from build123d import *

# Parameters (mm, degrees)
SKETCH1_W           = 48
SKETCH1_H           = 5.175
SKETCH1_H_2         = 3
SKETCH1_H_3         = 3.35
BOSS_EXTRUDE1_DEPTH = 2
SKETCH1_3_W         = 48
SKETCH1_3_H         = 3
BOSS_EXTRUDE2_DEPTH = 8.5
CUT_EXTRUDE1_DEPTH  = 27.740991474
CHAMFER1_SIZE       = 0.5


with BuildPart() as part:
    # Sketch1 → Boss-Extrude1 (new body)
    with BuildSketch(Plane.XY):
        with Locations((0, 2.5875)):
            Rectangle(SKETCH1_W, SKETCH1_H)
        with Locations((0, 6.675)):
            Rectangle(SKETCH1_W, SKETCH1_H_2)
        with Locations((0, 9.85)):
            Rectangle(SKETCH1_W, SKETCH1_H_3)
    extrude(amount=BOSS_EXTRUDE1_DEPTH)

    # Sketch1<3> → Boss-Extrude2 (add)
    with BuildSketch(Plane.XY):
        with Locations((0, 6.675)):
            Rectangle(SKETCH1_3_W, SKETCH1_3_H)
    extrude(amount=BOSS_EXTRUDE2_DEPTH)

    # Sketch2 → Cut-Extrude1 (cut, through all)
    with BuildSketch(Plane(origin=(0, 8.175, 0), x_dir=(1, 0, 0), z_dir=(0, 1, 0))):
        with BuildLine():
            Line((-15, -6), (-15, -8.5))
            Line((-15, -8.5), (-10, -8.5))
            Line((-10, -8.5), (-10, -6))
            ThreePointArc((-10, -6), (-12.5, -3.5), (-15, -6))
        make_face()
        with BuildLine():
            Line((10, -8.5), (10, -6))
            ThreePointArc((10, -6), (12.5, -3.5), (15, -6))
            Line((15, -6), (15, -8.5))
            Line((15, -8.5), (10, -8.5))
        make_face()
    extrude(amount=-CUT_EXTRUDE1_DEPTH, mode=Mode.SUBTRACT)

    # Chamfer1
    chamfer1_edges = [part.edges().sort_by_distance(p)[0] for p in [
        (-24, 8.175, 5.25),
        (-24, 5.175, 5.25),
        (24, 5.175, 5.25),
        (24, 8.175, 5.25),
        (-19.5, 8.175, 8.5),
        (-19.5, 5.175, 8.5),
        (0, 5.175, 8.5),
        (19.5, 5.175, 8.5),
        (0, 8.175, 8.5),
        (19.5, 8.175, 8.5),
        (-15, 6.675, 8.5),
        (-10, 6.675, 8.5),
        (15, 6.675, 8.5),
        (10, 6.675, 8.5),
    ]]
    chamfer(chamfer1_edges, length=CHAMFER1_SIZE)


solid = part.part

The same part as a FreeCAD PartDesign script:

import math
import FreeCAD as App
import Part
import Sketcher
from FreeCAD import Vector
Q = App.Units.Quantity


def edges_at(feature, points):
    """Names of the edges that pass closest to the given points."""
    edges = feature.Shape.Edges
    near = lambda p: min(range(len(edges)), key=lambda i: edges[i].distToShape(Part.Vertex(*p))[0])
    return sorted({f"Edge{near(p) + 1}" for p in points})

doc = App.newDocument("Part")
params = doc.addObject("Spreadsheet::Sheet", "Params")
for row, (alias, value) in enumerate([
    ("sketch1_width", "48 mm"),
    ("pad1_length", "2 mm"),
    ("sketch2_width", "48 mm"),
    ("sketch2_height", "3 mm"),
    ("pad2_length", "8.5 mm"),
    ("sketch3_radius", "2.5 mm"),
    ("sketch3_height", "2.5 mm"),
    ("chamfer_size", "0.5 mm"),
], start=1):
    params.set(f"A{row}", alias)
    params.set(f"B{row}", "=" + value)
    params.setAlias(f"B{row}", alias)

body = doc.addObject("PartDesign::Body", "Body")

# Sketch on XY plane
sketch1 = doc.addObject("Sketcher::SketchObject", "Sketch")
body.addObject(sketch1)
sketch1.AttachmentSupport = (doc.XY_Plane, [""])
sketch1.MapMode = "FlatFace"
sketch1.addGeometry(Part.LineSegment(Vector(-24, 0, 0), Vector(24, 0, 0)), False)
sketch1.addGeometry(Part.LineSegment(Vector(24, 0, 0), Vector(24, 12, 0)), False)
sketch1.addGeometry(Part.LineSegment(Vector(24, 12, 0), Vector(-24, 12, 0)), False)
sketch1.addGeometry(Part.LineSegment(Vector(-24, 12, 0), Vector(-24, 0, 0)), False)
sketch1.addConstraint(Sketcher.Constraint("Coincident", 0, 2, 1, 1))
sketch1.addConstraint(Sketcher.Constraint("Coincident", 1, 2, 2, 1))
sketch1.addConstraint(Sketcher.Constraint("Coincident", 2, 2, 3, 1))
sketch1.addConstraint(Sketcher.Constraint("Coincident", 3, 2, 0, 1))
sketch1.addConstraint(Sketcher.Constraint("Horizontal", 0))
sketch1.addConstraint(Sketcher.Constraint("Vertical", 1))
sketch1.addConstraint(Sketcher.Constraint("Horizontal", 2))
sketch1.addConstraint(Sketcher.Constraint("Vertical", 3))
sketch1.addConstraint(Sketcher.Constraint("Symmetric", 0, 2, 3, 2, -1, 1))
sketch1.addConstraint(Sketcher.Constraint("DistanceX", 0, 1, 0, 2, Q("48 mm")))
sketch1.addConstraint(Sketcher.Constraint("DistanceY", 1, 1, 1, 2, Q("11.525 mm")))
sketch1.setExpression("Constraints[9]", "Params.sketch1_width")
pad1 = doc.addObject("PartDesign::Pad", "Pad")
body.addObject(pad1)
pad1.Profile = sketch1
pad1.setExpression("Length", "Params.pad1_length")

# Sketch on XY plane
sketch2 = doc.addObject("Sketcher::SketchObject", "Sketch001")
body.addObject(sketch2)
sketch2.AttachmentSupport = (doc.XY_Plane, [""])
sketch2.MapMode = "FlatFace"
sketch2.addGeometry(Part.LineSegment(Vector(-24, 8.2, 0), Vector(-24, 5.2, 0)), False)
sketch2.addGeometry(Part.LineSegment(Vector(-24, 5.2, 0), Vector(24, 5.2, 0)), False)
sketch2.addGeometry(Part.LineSegment(Vector(24, 5.2, 0), Vector(24, 8.2, 0)), False)
sketch2.addGeometry(Part.LineSegment(Vector(24, 8.2, 0), Vector(-24, 8.2, 0)), False)
sketch2.addConstraint(Sketcher.Constraint("Coincident", 0, 2, 1, 1))
sketch2.addConstraint(Sketcher.Constraint("Coincident", 1, 2, 2, 1))
sketch2.addConstraint(Sketcher.Constraint("Coincident", 2, 2, 3, 1))
sketch2.addConstraint(Sketcher.Constraint("Coincident", 3, 2, 0, 1))
sketch2.addConstraint(Sketcher.Constraint("Vertical", 0))
sketch2.addConstraint(Sketcher.Constraint("Horizontal", 1))
sketch2.addConstraint(Sketcher.Constraint("Vertical", 2))
sketch2.addConstraint(Sketcher.Constraint("Horizontal", 3))
sketch2.addConstraint(Sketcher.Constraint("DistanceX", 1, 1, 1, 2, Q("48 mm")))
sketch2.addConstraint(Sketcher.Constraint("DistanceY", 0, 2, 0, 1, Q("3 mm")))
sketch2.addConstraint(Sketcher.Constraint("DistanceX", 0, 2, -1, 1, Q("24 mm")))
sketch2.addConstraint(Sketcher.Constraint("DistanceY", -1, 1, 0, 2, Q("5.175 mm")))
sketch2.setExpression("Constraints[8]", "Params.sketch2_width")
sketch2.setExpression("Constraints[9]", "Params.sketch2_height")
pad2 = doc.addObject("PartDesign::Pad", "Pad001")
body.addObject(pad2)
pad2.Profile = sketch2
pad2.setExpression("Length", "Params.pad2_length")

# Sketch on XZ plane
sketch3 = doc.addObject("Sketcher::SketchObject", "Sketch002")
body.addObject(sketch3)
sketch3.AttachmentSupport = (doc.XZ_Plane, [""])
sketch3.MapMode = "FlatFace"
sketch3.AttachmentOffset = App.Placement(Vector(0, 0, -8.175), App.Rotation())
sketch3.addGeometry(Part.LineSegment(Vector(-15, 6, 0), Vector(-15, 8.5, 0)), False)
sketch3.addGeometry(Part.LineSegment(Vector(-15, 8.5, 0), Vector(-10, 8.5, 0)), False)
sketch3.addGeometry(Part.LineSegment(Vector(-10, 8.5, 0), Vector(-10, 6, 0)), False)
sketch3.addGeometry(Part.ArcOfCircle(Part.Circle(Vector(-12.5, 6, 0), Vector(0, 0, 1), 2.5), math.radians(180), math.radians(360)), False)
sketch3.addGeometry(Part.LineSegment(Vector(10, 6, 0), Vector(10, 8.5, 0)), False)
sketch3.addGeometry(Part.LineSegment(Vector(10, 8.5, 0), Vector(15, 8.5, 0)), False)
sketch3.addGeometry(Part.LineSegment(Vector(15, 8.5, 0), Vector(15, 6, 0)), False)
sketch3.addGeometry(Part.ArcOfCircle(Part.Circle(Vector(12.5, 6, 0), Vector(0, 0, 1), 2.5), math.radians(180), math.radians(360)), False)
sketch3.addConstraint(Sketcher.Constraint("Coincident", 0, 2, 1, 1))
sketch3.addConstraint(Sketcher.Constraint("Coincident", 1, 2, 2, 1))
sketch3.addConstraint(Sketcher.Constraint("Tangent", 2, 2, 3, 2))
sketch3.addConstraint(Sketcher.Constraint("Tangent", 3, 1, 0, 1))
sketch3.addConstraint(Sketcher.Constraint("Coincident", 4, 2, 5, 1))
sketch3.addConstraint(Sketcher.Constraint("Coincident", 5, 2, 6, 1))
sketch3.addConstraint(Sketcher.Constraint("Tangent", 6, 2, 7, 2))
sketch3.addConstraint(Sketcher.Constraint("Tangent", 7, 1, 4, 1))
sketch3.addConstraint(Sketcher.Constraint("Vertical", 0))
sketch3.addConstraint(Sketcher.Constraint("Horizontal", 1))
sketch3.addConstraint(Sketcher.Constraint("Vertical", 2))
sketch3.addConstraint(Sketcher.Constraint("Vertical", 4))
sketch3.addConstraint(Sketcher.Constraint("Horizontal", 5))
sketch3.addConstraint(Sketcher.Constraint("Vertical", 6))
sketch3.addConstraint(Sketcher.Constraint("Equal", 3, 7))
sketch3.addConstraint(Sketcher.Constraint("Symmetric", 3, 3, 7, 3, -2))
sketch3.addConstraint(Sketcher.Constraint("Horizontal", 1, 2, 4, 2))
sketch3.addConstraint(Sketcher.Constraint("Radius", 3, Q("2.5 mm")))
sketch3.addConstraint(Sketcher.Constraint("DistanceY", 0, 1, 0, 2, Q("2.5 mm")))
sketch3.addConstraint(Sketcher.Constraint("DistanceY", -1, 1, 3, 3, Q("6 mm")))
sketch3.addConstraint(Sketcher.Constraint("DistanceX", 0, 2, -1, 1, Q("15 mm")))
sketch3.setExpression("Constraints[17]", "Params.sketch3_radius")
sketch3.setExpression("Constraints[18]", "Params.sketch3_height")
pocket1 = doc.addObject("PartDesign::Pocket", "Pocket")
body.addObject(pocket1)
pocket1.Profile = sketch3
pocket1.Type = "ThroughAll"
pocket1.Reversed = True
doc.recompute()

chamfer = doc.addObject("PartDesign::Chamfer", "Chamfer")
body.addObject(chamfer)
chamfer.Base = (pocket1, edges_at(pocket1, [
    (-24, 8.175, 5.25),
    (-24, 5.175, 5.25),
    (24, 5.175, 5.25),
    (24, 8.175, 5.25),
    (-19.5, 8.175, 8.5),
    (-19.5, 5.175, 8.5),
    (0, 5.175, 8.5),
    (19.5, 5.175, 8.5),
    (0, 8.175, 8.5),
    (19.5, 8.175, 8.5),
    (-15, 6.675, 8.5),
    (-10, 6.675, 8.5),
    (15, 6.675, 8.5),
    (10, 6.675, 8.5),
]))
chamfer.setExpression("Size", "Params.chamfer_size")

doc.recompute()
